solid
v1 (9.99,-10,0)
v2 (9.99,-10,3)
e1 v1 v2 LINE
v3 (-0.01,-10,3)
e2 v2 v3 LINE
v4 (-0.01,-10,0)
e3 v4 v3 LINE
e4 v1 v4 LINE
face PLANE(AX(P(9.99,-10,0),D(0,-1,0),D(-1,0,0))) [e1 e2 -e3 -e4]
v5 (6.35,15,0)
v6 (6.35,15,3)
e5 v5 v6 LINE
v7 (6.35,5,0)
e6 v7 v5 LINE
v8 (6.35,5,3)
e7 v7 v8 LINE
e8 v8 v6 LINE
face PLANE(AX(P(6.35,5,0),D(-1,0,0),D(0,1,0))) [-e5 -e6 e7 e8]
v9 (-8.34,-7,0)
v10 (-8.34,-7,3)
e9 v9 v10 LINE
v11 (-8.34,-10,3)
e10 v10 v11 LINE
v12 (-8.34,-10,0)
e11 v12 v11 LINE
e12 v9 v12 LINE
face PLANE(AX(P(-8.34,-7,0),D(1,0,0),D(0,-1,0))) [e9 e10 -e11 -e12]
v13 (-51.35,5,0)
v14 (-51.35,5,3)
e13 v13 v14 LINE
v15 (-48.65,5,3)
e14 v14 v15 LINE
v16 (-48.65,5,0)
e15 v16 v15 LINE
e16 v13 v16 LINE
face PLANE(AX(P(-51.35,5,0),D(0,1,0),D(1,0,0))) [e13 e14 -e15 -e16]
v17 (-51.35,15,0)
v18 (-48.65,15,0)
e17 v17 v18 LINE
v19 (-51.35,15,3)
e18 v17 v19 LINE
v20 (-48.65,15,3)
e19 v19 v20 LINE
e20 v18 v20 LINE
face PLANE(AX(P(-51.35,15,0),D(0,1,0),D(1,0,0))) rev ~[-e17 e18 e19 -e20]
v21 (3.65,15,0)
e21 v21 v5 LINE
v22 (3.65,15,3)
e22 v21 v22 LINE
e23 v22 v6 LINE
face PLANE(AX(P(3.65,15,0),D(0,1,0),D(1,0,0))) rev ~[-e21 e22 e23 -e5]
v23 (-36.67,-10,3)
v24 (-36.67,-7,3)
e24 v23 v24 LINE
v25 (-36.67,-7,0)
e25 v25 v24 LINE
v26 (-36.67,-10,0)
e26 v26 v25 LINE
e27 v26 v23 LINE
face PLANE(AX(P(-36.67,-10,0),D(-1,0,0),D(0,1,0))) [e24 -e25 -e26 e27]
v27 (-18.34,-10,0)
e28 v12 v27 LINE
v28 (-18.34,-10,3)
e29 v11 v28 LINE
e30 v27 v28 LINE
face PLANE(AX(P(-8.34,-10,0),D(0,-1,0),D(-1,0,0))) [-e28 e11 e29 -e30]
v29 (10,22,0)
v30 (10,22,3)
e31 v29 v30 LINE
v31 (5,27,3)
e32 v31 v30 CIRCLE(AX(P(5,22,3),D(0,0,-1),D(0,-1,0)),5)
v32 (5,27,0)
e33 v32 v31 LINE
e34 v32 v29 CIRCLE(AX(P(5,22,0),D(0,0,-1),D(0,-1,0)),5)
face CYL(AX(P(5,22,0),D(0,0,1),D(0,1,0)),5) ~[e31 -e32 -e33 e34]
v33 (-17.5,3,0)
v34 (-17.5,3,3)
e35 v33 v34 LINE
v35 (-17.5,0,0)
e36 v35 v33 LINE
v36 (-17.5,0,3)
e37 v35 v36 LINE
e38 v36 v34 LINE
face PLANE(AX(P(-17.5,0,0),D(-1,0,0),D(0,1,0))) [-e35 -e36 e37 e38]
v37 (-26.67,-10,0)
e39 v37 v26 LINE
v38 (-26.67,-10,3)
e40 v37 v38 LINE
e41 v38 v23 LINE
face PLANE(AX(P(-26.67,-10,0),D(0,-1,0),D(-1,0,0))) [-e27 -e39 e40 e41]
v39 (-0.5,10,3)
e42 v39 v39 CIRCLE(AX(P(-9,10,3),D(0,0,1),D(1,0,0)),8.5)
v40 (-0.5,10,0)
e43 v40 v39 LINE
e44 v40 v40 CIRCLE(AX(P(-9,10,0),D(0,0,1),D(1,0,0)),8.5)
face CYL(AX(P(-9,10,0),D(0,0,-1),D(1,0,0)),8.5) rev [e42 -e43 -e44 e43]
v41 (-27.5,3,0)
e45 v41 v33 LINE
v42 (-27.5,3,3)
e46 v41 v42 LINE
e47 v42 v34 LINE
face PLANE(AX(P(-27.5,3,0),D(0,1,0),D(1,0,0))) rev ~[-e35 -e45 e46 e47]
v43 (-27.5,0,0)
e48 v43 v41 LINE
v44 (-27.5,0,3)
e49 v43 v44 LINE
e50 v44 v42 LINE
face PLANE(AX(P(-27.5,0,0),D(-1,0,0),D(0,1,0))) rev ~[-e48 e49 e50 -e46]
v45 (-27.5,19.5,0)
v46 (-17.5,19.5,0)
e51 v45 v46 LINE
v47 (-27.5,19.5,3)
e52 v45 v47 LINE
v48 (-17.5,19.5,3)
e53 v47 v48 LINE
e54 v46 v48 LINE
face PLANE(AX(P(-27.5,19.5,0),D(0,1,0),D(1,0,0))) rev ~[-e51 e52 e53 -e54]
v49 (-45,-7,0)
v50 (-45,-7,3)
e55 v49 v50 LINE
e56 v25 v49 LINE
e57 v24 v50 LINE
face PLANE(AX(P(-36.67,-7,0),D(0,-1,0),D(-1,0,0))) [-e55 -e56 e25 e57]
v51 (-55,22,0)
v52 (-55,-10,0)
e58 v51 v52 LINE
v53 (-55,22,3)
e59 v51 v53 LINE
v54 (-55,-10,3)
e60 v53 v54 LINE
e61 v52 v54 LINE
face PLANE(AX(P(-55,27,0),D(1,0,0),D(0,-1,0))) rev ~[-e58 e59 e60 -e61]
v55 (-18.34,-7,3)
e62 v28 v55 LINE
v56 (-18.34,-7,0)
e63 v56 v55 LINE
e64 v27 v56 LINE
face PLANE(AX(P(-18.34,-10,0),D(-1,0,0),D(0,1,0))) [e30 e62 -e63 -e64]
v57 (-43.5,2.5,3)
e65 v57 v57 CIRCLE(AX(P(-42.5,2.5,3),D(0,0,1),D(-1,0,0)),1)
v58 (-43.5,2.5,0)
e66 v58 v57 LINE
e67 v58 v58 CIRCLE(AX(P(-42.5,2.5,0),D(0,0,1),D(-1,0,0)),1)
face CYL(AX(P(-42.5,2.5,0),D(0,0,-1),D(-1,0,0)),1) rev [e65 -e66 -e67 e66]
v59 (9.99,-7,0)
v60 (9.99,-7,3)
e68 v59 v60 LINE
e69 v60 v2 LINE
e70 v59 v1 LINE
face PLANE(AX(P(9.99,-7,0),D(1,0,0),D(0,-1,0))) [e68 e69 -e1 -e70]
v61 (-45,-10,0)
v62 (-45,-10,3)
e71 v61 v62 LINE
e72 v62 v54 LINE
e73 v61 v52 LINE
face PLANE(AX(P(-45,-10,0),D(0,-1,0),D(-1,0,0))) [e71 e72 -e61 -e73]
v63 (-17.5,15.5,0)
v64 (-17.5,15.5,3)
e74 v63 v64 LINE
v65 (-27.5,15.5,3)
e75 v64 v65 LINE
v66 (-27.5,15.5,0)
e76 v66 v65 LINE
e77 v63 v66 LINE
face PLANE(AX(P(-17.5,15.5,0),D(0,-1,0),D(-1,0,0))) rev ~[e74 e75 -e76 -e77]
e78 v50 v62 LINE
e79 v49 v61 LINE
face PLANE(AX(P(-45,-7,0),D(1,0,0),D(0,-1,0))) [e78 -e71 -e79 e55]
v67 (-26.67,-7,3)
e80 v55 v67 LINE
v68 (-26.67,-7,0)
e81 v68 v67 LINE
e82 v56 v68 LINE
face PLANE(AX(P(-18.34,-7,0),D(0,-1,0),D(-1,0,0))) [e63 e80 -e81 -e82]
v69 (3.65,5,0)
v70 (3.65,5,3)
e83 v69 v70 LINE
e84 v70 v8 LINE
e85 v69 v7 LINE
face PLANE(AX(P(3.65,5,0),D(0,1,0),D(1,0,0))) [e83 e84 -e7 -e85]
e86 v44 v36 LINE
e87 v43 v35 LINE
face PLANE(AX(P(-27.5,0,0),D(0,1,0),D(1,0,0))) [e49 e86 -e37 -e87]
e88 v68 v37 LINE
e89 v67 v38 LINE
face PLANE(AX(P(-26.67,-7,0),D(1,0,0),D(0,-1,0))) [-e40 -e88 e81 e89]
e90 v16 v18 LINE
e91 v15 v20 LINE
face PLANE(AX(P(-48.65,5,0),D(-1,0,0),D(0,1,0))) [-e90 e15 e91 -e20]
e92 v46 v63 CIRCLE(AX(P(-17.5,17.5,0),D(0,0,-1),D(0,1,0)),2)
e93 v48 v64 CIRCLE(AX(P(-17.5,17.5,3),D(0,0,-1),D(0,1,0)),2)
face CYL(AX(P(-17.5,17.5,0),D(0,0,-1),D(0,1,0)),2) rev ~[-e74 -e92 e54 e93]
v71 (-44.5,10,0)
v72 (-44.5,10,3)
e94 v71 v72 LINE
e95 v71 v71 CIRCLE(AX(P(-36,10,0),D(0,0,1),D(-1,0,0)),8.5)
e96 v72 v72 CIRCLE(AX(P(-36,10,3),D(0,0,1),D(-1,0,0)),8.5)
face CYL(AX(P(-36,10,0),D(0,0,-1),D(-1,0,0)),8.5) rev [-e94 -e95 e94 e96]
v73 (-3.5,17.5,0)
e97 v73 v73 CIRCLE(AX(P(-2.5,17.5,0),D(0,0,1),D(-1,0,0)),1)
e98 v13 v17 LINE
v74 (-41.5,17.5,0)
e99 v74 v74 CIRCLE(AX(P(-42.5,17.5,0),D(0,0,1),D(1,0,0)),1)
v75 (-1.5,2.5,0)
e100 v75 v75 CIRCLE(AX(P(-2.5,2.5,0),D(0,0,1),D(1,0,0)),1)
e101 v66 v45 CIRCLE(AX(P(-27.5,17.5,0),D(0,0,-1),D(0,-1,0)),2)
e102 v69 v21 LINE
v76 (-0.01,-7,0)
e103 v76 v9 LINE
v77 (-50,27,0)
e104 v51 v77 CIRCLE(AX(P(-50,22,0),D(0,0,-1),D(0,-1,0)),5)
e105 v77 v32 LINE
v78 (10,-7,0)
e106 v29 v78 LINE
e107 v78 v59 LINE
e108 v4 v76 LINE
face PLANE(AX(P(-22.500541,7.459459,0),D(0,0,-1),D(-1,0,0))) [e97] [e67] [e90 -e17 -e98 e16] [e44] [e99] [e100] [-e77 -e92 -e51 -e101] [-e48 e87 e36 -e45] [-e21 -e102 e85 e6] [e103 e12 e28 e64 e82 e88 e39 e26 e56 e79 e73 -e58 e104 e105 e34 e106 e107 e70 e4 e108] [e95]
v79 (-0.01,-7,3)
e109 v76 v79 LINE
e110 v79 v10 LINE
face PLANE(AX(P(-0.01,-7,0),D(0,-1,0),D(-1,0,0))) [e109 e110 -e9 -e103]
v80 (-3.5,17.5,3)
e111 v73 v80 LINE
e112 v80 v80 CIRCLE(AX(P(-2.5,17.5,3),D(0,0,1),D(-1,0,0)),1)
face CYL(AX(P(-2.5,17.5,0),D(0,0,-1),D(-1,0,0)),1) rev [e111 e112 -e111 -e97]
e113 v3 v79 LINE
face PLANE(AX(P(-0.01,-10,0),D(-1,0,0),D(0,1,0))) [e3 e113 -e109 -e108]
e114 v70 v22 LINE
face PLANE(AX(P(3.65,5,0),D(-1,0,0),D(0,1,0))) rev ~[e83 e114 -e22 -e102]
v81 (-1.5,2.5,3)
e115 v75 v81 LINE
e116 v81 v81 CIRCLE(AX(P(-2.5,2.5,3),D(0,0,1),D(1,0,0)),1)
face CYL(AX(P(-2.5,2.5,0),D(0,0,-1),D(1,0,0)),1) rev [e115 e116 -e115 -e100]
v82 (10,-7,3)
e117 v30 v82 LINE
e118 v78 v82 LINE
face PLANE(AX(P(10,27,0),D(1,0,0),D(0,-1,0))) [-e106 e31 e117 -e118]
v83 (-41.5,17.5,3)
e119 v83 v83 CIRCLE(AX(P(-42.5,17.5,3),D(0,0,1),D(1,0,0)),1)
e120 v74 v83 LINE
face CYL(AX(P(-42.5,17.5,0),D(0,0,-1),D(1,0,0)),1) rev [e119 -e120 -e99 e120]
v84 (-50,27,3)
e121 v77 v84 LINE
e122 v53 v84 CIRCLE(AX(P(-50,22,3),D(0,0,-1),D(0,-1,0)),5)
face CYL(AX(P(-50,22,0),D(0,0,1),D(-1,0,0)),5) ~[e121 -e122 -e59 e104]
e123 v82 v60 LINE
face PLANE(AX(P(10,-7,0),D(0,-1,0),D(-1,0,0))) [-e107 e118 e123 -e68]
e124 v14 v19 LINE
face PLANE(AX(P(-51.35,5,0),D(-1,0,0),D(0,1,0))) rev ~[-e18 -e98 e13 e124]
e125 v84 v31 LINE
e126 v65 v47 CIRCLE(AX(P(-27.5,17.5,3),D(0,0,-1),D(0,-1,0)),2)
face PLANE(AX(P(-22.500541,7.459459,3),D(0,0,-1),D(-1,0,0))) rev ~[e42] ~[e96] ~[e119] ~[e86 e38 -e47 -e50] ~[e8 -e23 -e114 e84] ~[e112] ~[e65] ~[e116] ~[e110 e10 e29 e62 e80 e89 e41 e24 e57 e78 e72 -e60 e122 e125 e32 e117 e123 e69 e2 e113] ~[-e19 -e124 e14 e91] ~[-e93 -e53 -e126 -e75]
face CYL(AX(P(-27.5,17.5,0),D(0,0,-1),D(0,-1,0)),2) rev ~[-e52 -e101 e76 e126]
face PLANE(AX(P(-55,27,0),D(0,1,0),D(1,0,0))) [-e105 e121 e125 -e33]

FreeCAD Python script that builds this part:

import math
import FreeCAD as App
import Part
import Sketcher


def edges_at(feature, points):
    """Names of the edges that pass closest to the given points."""
    edges = feature.Shape.Edges
    near = lambda p: min(range(len(edges)), key=lambda i: edges[i].distToShape(Part.Vertex(*p))[0])
    return sorted({f"Edge{near(p) + 1}" for p in points})


def add_polygon(sketch, points):
    """Adds a closed chain of lines whose ends are joined by coincident constraints."""
    first, n = sketch.GeometryCount, len(points)
    for a, b in zip(points, points[1:] + points[:1]):
        sketch.addGeometry(Part.LineSegment(App.Vector(*a, 0), App.Vector(*b, 0)), False)
    for i in range(n):
        sketch.addConstraint(Sketcher.Constraint("Coincident", first + i, 2, first + (i + 1) % n, 1))

doc = App.newDocument("Part")
body = doc.addObject("PartDesign::Body", "Body")

# Sketch on XY plane
sketch1 = body.newObject("Sketcher::SketchObject", "Sketch")
sketch1.AttachmentSupport = (doc.getObject("XY_Plane"), [""])
sketch1.MapMode = "FlatFace"
add_polygon(sketch1, [(-26.67, -7), (-18.34, -7), (-18.34, -10), (-8.34, -10), (-8.34, -7), (-0.01, -7), (-0.01, -10), (9.99, -10), (9.99, -7), (10, -7), (10, 27), (-55, 27), (-55, -10), (-45, -10), (-45, -7), (-36.67, -7), (-36.67, -10), (-26.67, -10)])  # lines 0-17
sketch1.addGeometry(Part.Circle(App.Vector(-2.5, 2.5, 0), App.Vector(0, 0, 1), 1), False)  # 18
add_polygon(sketch1, [(-27.5, 0), (-27.5, 3), (-17.5, 3), (-17.5, 0)])  # lines 19-22
sketch1.addGeometry(Part.Circle(App.Vector(-42.5, 2.5, 0), App.Vector(0, 0, 1), 1), False)  # 23
add_polygon(sketch1, [(3.65, 5), (3.65, 15), (6.35, 15), (6.35, 5)])  # lines 24-27
sketch1.addGeometry(Part.Circle(App.Vector(-9, 10, 0), App.Vector(0, 0, 1), 8.5), False)  # 28
sketch1.addGeometry(Part.Circle(App.Vector(-2.5, 17.5, 0), App.Vector(0, 0, 1), 1), False)  # 29
sketch1.addGeometry(Part.Circle(App.Vector(-36, 10, 0), App.Vector(0, 0, 1), 8.5), False)  # 30
add_polygon(sketch1, [(-51.35, 5), (-51.35, 15), (-48.65, 15), (-48.65, 5)])  # lines 31-34
sketch1.addGeometry(Part.LineSegment(App.Vector(-27.5, 19.5, 0), App.Vector(-17.5, 19.5, 0)), False)  # 35
sketch1.addGeometry(Part.ArcOfCircle(Part.Circle(App.Vector(-17.5, 17.5, 0), App.Vector(0, 0, 1), 2), math.radians(-90), math.radians(90)), False)  # 36
sketch1.addGeometry(Part.LineSegment(App.Vector(-17.5, 15.5, 0), App.Vector(-27.5, 15.5, 0)), False)  # 37
sketch1.addGeometry(Part.ArcOfCircle(Part.Circle(App.Vector(-27.5, 17.5, 0), App.Vector(0, 0, 1), 2), math.radians(90), math.radians(270)), False)  # 38
sketch1.addGeometry(Part.Circle(App.Vector(-42.5, 17.5, 0), App.Vector(0, 0, 1), 1), False)  # 39
sketch1.addConstraint([
    Sketcher.Constraint("Tangent", 35, 2, 36, 2),
    Sketcher.Constraint("Tangent", 36, 1, 37, 1),
    Sketcher.Constraint("Tangent", 37, 2, 38, 2),
    Sketcher.Constraint("Tangent", 38, 1, 35, 1),
    Sketcher.Constraint("Horizontal", 0),
    Sketcher.Constraint("Vertical", 1),
    Sketcher.Constraint("Horizontal", 2),
    Sketcher.Constraint("Vertical", 3),
    Sketcher.Constraint("Horizontal", 4),
    Sketcher.Constraint("Vertical", 5),
    Sketcher.Constraint("Horizontal", 6),
    Sketcher.Constraint("Vertical", 7),
    Sketcher.Constraint("Horizontal", 8),
    Sketcher.Constraint("Vertical", 9),
    Sketcher.Constraint("Horizontal", 10),
    Sketcher.Constraint("Vertical", 11),
    Sketcher.Constraint("Horizontal", 12),
    Sketcher.Constraint("Vertical", 13),
    Sketcher.Constraint("Horizontal", 14),
    Sketcher.Constraint("Vertical", 15),
    Sketcher.Constraint("Horizontal", 16),
    Sketcher.Constraint("Vertical", 17),
    Sketcher.Constraint("Vertical", 19),
    Sketcher.Constraint("Horizontal", 20),
    Sketcher.Constraint("Vertical", 21),
    Sketcher.Constraint("Horizontal", 22),
    Sketcher.Constraint("Vertical", 24),
    Sketcher.Constraint("Horizontal", 25),
    Sketcher.Constraint("Vertical", 26),
    Sketcher.Constraint("Horizontal", 27),
    Sketcher.Constraint("Vertical", 31),
    Sketcher.Constraint("Horizontal", 32),
    Sketcher.Constraint("Vertical", 33),
    Sketcher.Constraint("Horizontal", 34),
    Sketcher.Constraint("Horizontal", 35),
    Sketcher.Constraint("Horizontal", 37),
    Sketcher.Constraint("Equal", 18, 23),
    Sketcher.Constraint("Equal", 23, 29),
    Sketcher.Constraint("Equal", 28, 30),
    Sketcher.Constraint("Equal", 29, 39),
    Sketcher.Constraint("PointOnObject", 21, 2, -1),
    Sketcher.Constraint("Horizontal", 18, 3, 23, 3),
    Sketcher.Constraint("Horizontal", 28, 3, 30, 3),
    Sketcher.Constraint("Horizontal", 29, 3, 36, 3),
    Sketcher.Constraint("Horizontal", 38, 3, 39, 3),
    Sketcher.Constraint("Horizontal", 0, 2, 3, 2),
    Sketcher.Constraint("Horizontal", 2, 2, 5, 2),
    Sketcher.Constraint("Horizontal", 4, 2, 7, 2),
    Sketcher.Constraint("Horizontal", 6, 2, 11, 2),
    Sketcher.Constraint("Horizontal", 8, 2, 13, 2),
    Sketcher.Constraint("Horizontal", 12, 2, 15, 2),
    Sketcher.Constraint("Horizontal", 25, 2, 31, 2),
    Sketcher.Constraint("Horizontal", 27, 2, 33, 2),
    Sketcher.Constraint("Vertical", 18, 3, 29, 3),
    Sketcher.Constraint("Vertical", 23, 3, 39, 3),
    Sketcher.Constraint("Vertical", 38, 3, 19, 2),
    Sketcher.Constraint("Vertical", 36, 3, 20, 2),
    Sketcher.Constraint("Equal", 0, 4),
    Sketcher.Constraint("Equal", 2, 6),
    Sketcher.Constraint("Equal", 6, 12),
    Sketcher.Constraint("Equal", 4, 14),
    Sketcher.Constraint("Equal", 12, 16),
    Sketcher.Constraint("Equal", 16, 20),
    Sketcher.Constraint("Equal", 27, 32),
    Sketcher.Constraint("Equal", 17, 19),
    Sketcher.Constraint("Equal", 37, 24),
    Sketcher.Constraint("Diameter", 18, 2.0),
    Sketcher.Constraint("Diameter", 28, 17.0),
    Sketcher.Constraint("Radius", 36, 2.0),
    Sketcher.Constraint("DistanceX", 2, 1, 2, 2, 10.0),
    Sketcher.Constraint("DistanceX", 10, 2, 10, 1, 65.0),
    Sketcher.Constraint("DistanceY", 1, 2, 1, 1, 3.0),
    Sketcher.Constraint("DistanceY", 9, 1, 9, 2, 34.0),
    Sketcher.Constraint("DistanceX", 25, 1, 25, 2, 2.7),
    Sketcher.Constraint("DistanceX", 28, 3, -1, 1, 9.0),
    Sketcher.Constraint("DistanceY", -1, 1, 28, 3, 10.0),
    Sketcher.Constraint("DistanceX", 30, 3, -1, 1, 36.0),
    Sketcher.Constraint("DistanceY", 0, 2, -1, 1, 7.0),
    Sketcher.Constraint("DistanceX", -1, 1, 8, 2, 10.0),
    Sketcher.Constraint("DistanceY", -1, 1, 24, 2, 15.0),
    Sketcher.Constraint("DistanceX", 23, 3, 18, 3, 40.0),
    Sketcher.Constraint("DistanceY", 18, 3, 29, 3, 15.0),
    Sketcher.Constraint("DistanceX", 36, 3, 29, 3, 15.0),
    Sketcher.Constraint("DistanceX", 0, 1, 0, 2, 8.33),
    Sketcher.Constraint("DistanceX", 18, 3, -1, 1, 2.5),
    Sketcher.Constraint("DistanceY", -1, 1, 18, 3, 2.5),
    Sketcher.Constraint("DistanceX", -1, 1, 24, 2, 3.65),
    Sketcher.Constraint("DistanceX", 31, 2, -1, 1, 51.35),
])
pad1 = body.newObject("PartDesign::Pad", "Pad")
pad1.Profile = sketch1
pad1.Length = 3
doc.recompute()

fillet = body.newObject("PartDesign::Fillet", "Fillet")
fillet.Base = (pad1, edges_at(pad1, [(-55, 27, 1.5), (10, 27, 1.5)]))
fillet.Radius = 5

doc.recompute()
